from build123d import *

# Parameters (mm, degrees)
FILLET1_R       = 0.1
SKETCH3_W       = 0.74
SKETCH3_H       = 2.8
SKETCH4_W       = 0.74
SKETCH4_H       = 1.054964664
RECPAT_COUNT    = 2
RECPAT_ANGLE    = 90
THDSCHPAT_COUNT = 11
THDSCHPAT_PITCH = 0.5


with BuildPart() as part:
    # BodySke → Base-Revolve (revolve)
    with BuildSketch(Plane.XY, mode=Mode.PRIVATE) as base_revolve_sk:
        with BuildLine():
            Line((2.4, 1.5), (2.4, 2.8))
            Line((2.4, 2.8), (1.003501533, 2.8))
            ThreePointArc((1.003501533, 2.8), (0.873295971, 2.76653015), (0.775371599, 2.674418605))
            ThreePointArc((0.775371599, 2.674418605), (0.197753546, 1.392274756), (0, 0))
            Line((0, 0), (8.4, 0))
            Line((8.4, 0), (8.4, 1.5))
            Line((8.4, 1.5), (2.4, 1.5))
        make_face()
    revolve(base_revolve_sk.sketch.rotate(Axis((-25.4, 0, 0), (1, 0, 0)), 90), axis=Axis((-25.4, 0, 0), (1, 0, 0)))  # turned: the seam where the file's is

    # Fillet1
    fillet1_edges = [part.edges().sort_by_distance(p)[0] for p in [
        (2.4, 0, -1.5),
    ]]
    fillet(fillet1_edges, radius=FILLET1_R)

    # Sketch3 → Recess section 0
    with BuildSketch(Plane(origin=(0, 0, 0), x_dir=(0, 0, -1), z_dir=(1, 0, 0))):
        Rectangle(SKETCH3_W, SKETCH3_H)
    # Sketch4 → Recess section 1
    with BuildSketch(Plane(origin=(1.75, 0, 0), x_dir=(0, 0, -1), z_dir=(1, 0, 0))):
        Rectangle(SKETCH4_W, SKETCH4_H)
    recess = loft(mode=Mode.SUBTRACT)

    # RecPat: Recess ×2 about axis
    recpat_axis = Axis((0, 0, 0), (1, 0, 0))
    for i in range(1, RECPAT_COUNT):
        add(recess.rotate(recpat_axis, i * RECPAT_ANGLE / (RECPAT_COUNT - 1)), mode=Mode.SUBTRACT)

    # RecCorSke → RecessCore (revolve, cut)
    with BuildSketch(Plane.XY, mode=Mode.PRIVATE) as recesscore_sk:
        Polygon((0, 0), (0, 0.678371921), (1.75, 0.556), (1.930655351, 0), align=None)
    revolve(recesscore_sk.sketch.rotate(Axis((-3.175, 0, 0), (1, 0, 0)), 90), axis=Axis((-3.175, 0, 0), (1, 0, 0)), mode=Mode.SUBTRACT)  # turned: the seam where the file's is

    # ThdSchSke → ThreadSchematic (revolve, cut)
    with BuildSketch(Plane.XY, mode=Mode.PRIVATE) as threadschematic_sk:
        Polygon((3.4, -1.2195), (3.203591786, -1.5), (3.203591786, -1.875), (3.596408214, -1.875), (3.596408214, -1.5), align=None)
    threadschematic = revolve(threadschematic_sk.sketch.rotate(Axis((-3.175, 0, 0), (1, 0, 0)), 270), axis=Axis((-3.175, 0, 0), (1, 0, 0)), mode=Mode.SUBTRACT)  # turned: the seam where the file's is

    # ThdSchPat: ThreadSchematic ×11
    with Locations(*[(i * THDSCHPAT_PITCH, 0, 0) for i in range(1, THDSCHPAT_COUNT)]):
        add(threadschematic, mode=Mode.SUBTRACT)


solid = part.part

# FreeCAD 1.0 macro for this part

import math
import FreeCAD as App
import Part
import Sketcher
Q = App.Units.Quantity


def edges_at(feature, points):
    """Names of the edges that pass closest to the given points."""
    edges = feature.Shape.Edges
    near = lambda p: min(range(len(edges)), key=lambda i: edges[i].distToShape(Part.Vertex(*p))[0])
    return sorted({f"Edge{near(p) + 1}" for p in points})


def add_polygon(sketch, points):
    """Adds a closed chain of lines whose ends are joined by coincident constraints."""
    first, n = sketch.GeometryCount, len(points)
    for a, b in zip(points, points[1:] + points[:1]):
        sketch.addGeometry(Part.LineSegment(App.Vector(*a, 0), App.Vector(*b, 0)), False)
    for i in range(n):
        sketch.addConstraint(Sketcher.Constraint("Coincident", first + i, 2, first + (i + 1) % n, 1))

doc = App.newDocument("Part")
body = doc.addObject("PartDesign::Body", "Body")

sketch1 = doc.addObject("Sketcher::SketchObject", "Sketch")
body.addObject(sketch1)
sketch1.AttachmentSupport = (doc.XY_Plane, [""])
sketch1.MapMode = "FlatFace"
sketch1.addGeometry(Part.LineSegment(App.Vector(2.4, 1.5, 0), App.Vector(2.4, 2.8, 0)), False)
sketch1.addGeometry(Part.LineSegment(App.Vector(2.4, 2.8, 0), App.Vector(1, 2.8, 0)), False)
sketch1.addGeometry(Part.ArcOfCircle(Part.Circle(App.Vector(1, 2.53, 0), App.Vector(0, 0, 1), 0.27), math.radians(90), math.radians(148)), False)
sketch1.addGeometry(Part.ArcOfCircle(Part.Circle(App.Vector(5, 0, 0), App.Vector(0, 0, 1), 5), math.radians(148), math.radians(180)), False)
sketch1.addGeometry(Part.LineSegment(App.Vector(0, 0, 0), App.Vector(8.4, 0, 0)), False)
sketch1.addGeometry(Part.LineSegment(App.Vector(8.4, 0, 0), App.Vector(8.4, 1.5, 0)), False)
sketch1.addGeometry(Part.LineSegment(App.Vector(8.4, 1.5, 0), App.Vector(2.4, 1.5, 0)), False)
sketch1.addConstraint(Sketcher.Constraint("Coincident", 0, 2, 1, 1))
sketch1.addConstraint(Sketcher.Constraint("Tangent", 1, 2, 2, 1))
sketch1.addConstraint(Sketcher.Constraint("Tangent", 2, 2, 3, 1))
sketch1.addConstraint(Sketcher.Constraint("Coincident", 3, 2, 4, 1))
sketch1.addConstraint(Sketcher.Constraint("Coincident", 4, 2, 5, 1))
sketch1.addConstraint(Sketcher.Constraint("Coincident", 5, 2, 6, 1))
sketch1.addConstraint(Sketcher.Constraint("Coincident", 6, 2, 0, 1))
sketch1.addConstraint(Sketcher.Constraint("Vertical", 0))
sketch1.addConstraint(Sketcher.Constraint("Horizontal", 1))
sketch1.addConstraint(Sketcher.Constraint("Horizontal", 4))
sketch1.addConstraint(Sketcher.Constraint("Vertical", 5))
sketch1.addConstraint(Sketcher.Constraint("Horizontal", 6))
sketch1.addConstraint(Sketcher.Constraint("Coincident", 3, 2, -1, 1))
sketch1.addConstraint(Sketcher.Constraint("PointOnObject", 3, 3, -1))
sketch1.addConstraint(Sketcher.Constraint("Radius", 3, Q("5 mm")))
sketch1.addConstraint(Sketcher.Constraint("DistanceX", 6, 2, 6, 1, Q("6 mm")))
sketch1.addConstraint(Sketcher.Constraint("Radius", 2, Q("0.27 mm")))
sketch1.addConstraint(Sketcher.Constraint("DistanceX", 4, 1, 4, 2, Q("8.4 mm")))
sketch1.addConstraint(Sketcher.Constraint("DistanceY", 0, 1, 0, 2, Q("1.3 mm")))
sketch1.addConstraint(Sketcher.Constraint("DistanceY", 5, 1, 5, 2, Q("1.5 mm")))
revolution = doc.addObject("PartDesign::Revolution", "Revolution")
body.addObject(revolution)
revolution.Profile = sketch1
revolution.ReferenceAxis = (sketch1, ["H_Axis"])
revolution.Angle = 360
doc.recompute()

fillet = doc.addObject("PartDesign::Fillet", "Fillet")
body.addObject(fillet)
fillet.Base = (revolution, edges_at(revolution, [(2.4, 0, -1.5)]))
fillet.Radius = 0.1

sketch2 = doc.addObject("Sketcher::SketchObject", "Sketch001")
body.addObject(sketch2)
sketch2.AttachmentSupport = (doc.YZ_Plane, [""])
sketch2.MapMode = "FlatFace"
add_polygon(sketch2, [(1.4, 0.4), (-1.4, 0.4), (-1.4, -0.4), (1.4, -0.4)])
sketch2.addConstraint(Sketcher.Constraint("Horizontal", 0))
sketch2.addConstraint(Sketcher.Constraint("Vertical", 1))
sketch2.addConstraint(Sketcher.Constraint("Horizontal", 2))
sketch2.addConstraint(Sketcher.Constraint("Vertical", 3))
sketch2.addConstraint(Sketcher.Constraint("Symmetric", 0, 2, 2, 2, -1, 1))
sketch2.addConstraint(Sketcher.Constraint("DistanceX", 0, 2, 0, 1, Q("2.8 mm")))
sketch2.addConstraint(Sketcher.Constraint("DistanceY", 1, 2, 1, 1, Q("0.74 mm")))

sketch3 = doc.addObject("Sketcher::SketchObject", "Sketch002")
body.addObject(sketch3)
sketch3.AttachmentSupport = (doc.YZ_Plane, [""])
sketch3.MapMode = "FlatFace"
sketch3.AttachmentOffset = App.Placement(App.Vector(0, 0, 1.75), App.Rotation())
add_polygon(sketch3, [(0.5, 0.4), (-0.5, 0.4), (-0.5, -0.4), (0.5, -0.4)])
sketch3.addConstraint(Sketcher.Constraint("Horizontal", 0))
sketch3.addConstraint(Sketcher.Constraint("Vertical", 1))
sketch3.addConstraint(Sketcher.Constraint("Horizontal", 2))
sketch3.addConstraint(Sketcher.Constraint("Vertical", 3))
sketch3.addConstraint(Sketcher.Constraint("Symmetric", 0, 2, 2, 2, -1, 1))
sketch3.addConstraint(Sketcher.Constraint("DistanceY", 1, 2, 1, 1, Q("0.74 mm")))
sketch3.addConstraint(Sketcher.Constraint("DistanceX", 0, 2, 0, 1, Q("1.054965 mm")))

subtractiveloft = doc.addObject("PartDesign::SubtractiveLoft", "SubtractiveLoft")
body.addObject(subtractiveloft)
subtractiveloft.Profile = sketch2
subtractiveloft.Sections = [sketch3]
doc.recompute()

polarpattern = doc.addObject("PartDesign::PolarPattern", "PolarPattern")
body.addObject(polarpattern)
polarpattern.Originals = [subtractiveloft]
polarpattern.Axis = (doc.X_Axis, [""])
polarpattern.Angle = 90
polarpattern.Occurrences = 2
body.Tip = polarpattern

sketch4 = doc.addObject("Sketcher::SketchObject", "Sketch003")
body.addObject(sketch4)
sketch4.AttachmentSupport = (doc.XY_Plane, [""])
sketch4.MapMode = "FlatFace"
add_polygon(sketch4, [(0, 0.7), (0, 0), (1.9, 0), (1.8, 0.6)])
sketch4.addConstraint(Sketcher.Constraint("Vertical", 0))
sketch4.addConstraint(Sketcher.Constraint("Horizontal", 1))
sketch4.addConstraint(Sketcher.Constraint("Coincident", 0, 2, -1, 1))
sketch4.addConstraint(Sketcher.Constraint("Angle", 2, Q("108 deg")))
sketch4.addConstraint(Sketcher.Constraint("Angle", 3, Q("176 deg")))
sketch4.addConstraint(Sketcher.Constraint("DistanceX", -1, 1, 2, 2, Q("1.75 mm")))
sketch4.addConstraint(Sketcher.Constraint("DistanceY", -1, 1, 2, 2, Q("0.556 mm")))
groove = doc.addObject("PartDesign::Groove", "Groove")
body.addObject(groove)
groove.Profile = sketch4
groove.ReferenceAxis = (sketch4, ["H_Axis"])
groove.Angle = 360

sketch5 = doc.addObject("Sketcher::SketchObject", "Sketch004")
body.addObject(sketch5)
sketch5.AttachmentSupport = (doc.XY_Plane, [""])
sketch5.MapMode = "FlatFace"
add_polygon(sketch5, [(3.4, -1.22), (3.2, -1.5), (3.2, -1.88), (3.6, -1.88), (3.6, -1.5)])
sketch5.addConstraint(Sketcher.Constraint("Vertical", 1))
sketch5.addConstraint(Sketcher.Constraint("Horizontal", 2))
sketch5.addConstraint(Sketcher.Constraint("Vertical", 3))
sketch5.addConstraint(Sketcher.Constraint("Horizontal", 0, 2, 3, 2))
sketch5.addConstraint(Sketcher.Constraint("Equal", 0, 4))
sketch5.addConstraint(Sketcher.Constraint("Angle", 0, Q("-125 deg")))
sketch5.addConstraint(Sketcher.Constraint("DistanceY", 0, 2, -1, 1, Q("1.5 mm")))
sketch5.addConstraint(Sketcher.Constraint("DistanceX", -1, 1, 4, 2, Q("3.4 mm")))
sketch5.addConstraint(Sketcher.Constraint("DistanceY", 1, 2, 1, 1, Q("0.375 mm")))
sketch5.addConstraint(Sketcher.Constraint("DistanceY", 4, 2, -1, 1, Q("1.2195 mm")))
groove2 = doc.addObject("PartDesign::Groove", "Groove001")
body.addObject(groove2)
groove2.Profile = sketch5
groove2.ReferenceAxis = (sketch5, ["H_Axis"])
groove2.Angle = 360
doc.recompute()

linearpattern = doc.addObject("PartDesign::LinearPattern", "LinearPattern")
body.addObject(linearpattern)
linearpattern.Originals = [groove2]
linearpattern.Direction = (doc.X_Axis, [""])
linearpattern.Mode = "offset"
linearpattern.Offset = 0.5
linearpattern.Occurrences = 11
body.Tip = linearpattern

doc.recompute()
